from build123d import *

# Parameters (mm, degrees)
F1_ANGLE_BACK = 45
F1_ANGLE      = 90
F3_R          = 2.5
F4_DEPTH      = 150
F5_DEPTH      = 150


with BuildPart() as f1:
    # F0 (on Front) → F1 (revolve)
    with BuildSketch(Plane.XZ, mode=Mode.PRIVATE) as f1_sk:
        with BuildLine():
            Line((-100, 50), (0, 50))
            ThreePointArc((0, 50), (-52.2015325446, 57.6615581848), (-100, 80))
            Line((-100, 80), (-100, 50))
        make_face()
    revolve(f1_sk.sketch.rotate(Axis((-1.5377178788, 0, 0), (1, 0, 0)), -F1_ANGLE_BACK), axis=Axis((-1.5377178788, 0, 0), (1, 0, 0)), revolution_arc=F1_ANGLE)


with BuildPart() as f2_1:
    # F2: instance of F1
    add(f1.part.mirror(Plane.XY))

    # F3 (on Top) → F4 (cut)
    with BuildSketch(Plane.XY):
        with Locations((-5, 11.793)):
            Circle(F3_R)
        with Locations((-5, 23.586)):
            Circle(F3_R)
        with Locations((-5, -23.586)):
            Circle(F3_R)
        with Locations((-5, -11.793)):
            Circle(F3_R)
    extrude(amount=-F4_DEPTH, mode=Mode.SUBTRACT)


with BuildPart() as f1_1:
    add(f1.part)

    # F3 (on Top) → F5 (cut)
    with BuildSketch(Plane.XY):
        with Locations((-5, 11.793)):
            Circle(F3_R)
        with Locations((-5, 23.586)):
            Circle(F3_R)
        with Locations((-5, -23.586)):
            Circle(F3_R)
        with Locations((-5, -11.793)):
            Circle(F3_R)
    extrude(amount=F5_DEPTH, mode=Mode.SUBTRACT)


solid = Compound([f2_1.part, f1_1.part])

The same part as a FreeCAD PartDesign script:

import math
import FreeCAD as App
import Part
import Sketcher

V = App.Vector
Q = App.Units.Quantity

doc = App.newDocument("Part")
params = doc.addObject("Spreadsheet::Sheet", "Params")
for row, (alias, value) in enumerate([
    ("sketch1_width", "100 mm"),
    ("sketch1_height", "30 mm"),
    ("revolution_angle", "90 deg"),
    ("sketch2_diameter", "5 mm"),
    ("pocket1_length", "150 mm"),
    ("sketch3_diameter", "5 mm"),
    ("pocket2_length", "150 mm"),
], start=1):
    params.set(f"A{row}", alias)
    params.set(f"B{row}", "=" + value)
    params.setAlias(f"B{row}", alias)

body = doc.addObject("PartDesign::Body", "Body")

sketch1 = body.newObject("Sketcher::SketchObject", "Sketch")
sketch1.Placement = App.Placement(V(0, 0, 0), App.Rotation(V(1, 0, 0), V(0, 0.707106781, 0.707106781), V(0, -0.707106781, 0.707106781), "ZXY"))
sketch1.addGeometry([
    Part.LineSegment(V(-100, 50, 0), V(0, 50, 0)),
    Part.ArcOfCircle(Part.Circle(V(0, 232, 0), V(0, 0, 1), 182), math.radians(-123), math.radians(-90)),
    Part.LineSegment(V(-100, 80, 0), V(-100, 50, 0)),
], False)
sketch1.addConstraint([
    Sketcher.Constraint("Tangent", 0, 2, 1, 2),
    Sketcher.Constraint("Coincident", 1, 1, 2, 1),
    Sketcher.Constraint("Coincident", 2, 2, 0, 1),
    Sketcher.Constraint("Horizontal", 0),
    Sketcher.Constraint("Vertical", 2),
    Sketcher.Constraint("PointOnObject", 1, 3, -2),
    Sketcher.Constraint("DistanceX", 0, 1, 0, 2, Q("100 mm")),
    Sketcher.Constraint("DistanceY", 2, 2, 2, 1, Q("30 mm")),
    Sketcher.Constraint("DistanceY", -1, 1, 0, 2, Q("50 mm")),
])
sketch1.setExpression("Constraints[6]", "Params.sketch1_width")
sketch1.setExpression("Constraints[7]", "Params.sketch1_height")
revolution = body.newObject("PartDesign::Revolution", "Revolution")
revolution.Profile = sketch1
revolution.ReferenceAxis = (sketch1, ["H_Axis"])
revolution.setExpression("Angle", "Params.revolution_angle")
body2 = doc.addObject("PartDesign::Body", "Body001")
doc.recompute()

mirroring = doc.addObject("Part::Mirroring", "Mirroring")
mirroring.Source = body
mirroring.Base = V(0, 0, 0)
mirroring.Normal = V(0, 0, 1)
body2.BaseFeature = mirroring
doc.recompute()

sketch2 = body2.newObject("Sketcher::SketchObject", "Sketch001")
sketch2.AttachmentSupport = (doc.getObject("XY_Plane001"), [""])
sketch2.MapMode = "FlatFace"
sketch2.addGeometry([
    Part.Circle(V(-5, 11.8, 0), V(0, 0, 1), 2.5),
    Part.Circle(V(-5, 23.6, 0), V(0, 0, 1), 2.5),
    Part.Circle(V(-5, -23.6, 0), V(0, 0, 1), 2.5),
    Part.Circle(V(-5, -11.8, 0), V(0, 0, 1), 2.5),
], False)
sketch2.addConstraint([
    Sketcher.Constraint("Equal", 0, 1),
    Sketcher.Constraint("Equal", 1, 2),
    Sketcher.Constraint("Equal", 2, 3),
    Sketcher.Constraint("Symmetric", 1, 3, 2, 3, -1),
    Sketcher.Constraint("Symmetric", 0, 3, 3, 3, -1),
    Sketcher.Constraint("Vertical", 0, 3, 1, 3),
    Sketcher.Constraint("Diameter", 0, Q("5 mm")),
    Sketcher.Constraint("DistanceX", 0, 3, -1, 1, Q("5 mm")),
    Sketcher.Constraint("DistanceY", -1, 1, 0, 3, Q("11.793 mm")),
    Sketcher.Constraint("DistanceY", -1, 1, 1, 3, Q("23.586 mm")),
])
sketch2.setExpression("Constraints[6]", "Params.sketch2_diameter")
pocket1 = body2.newObject("PartDesign::Pocket", "Pocket")
pocket1.Profile = sketch2
pocket1.setExpression("Length", "Params.pocket1_length")

sketch3 = body.newObject("Sketcher::SketchObject", "Sketch002")
sketch3.AttachmentSupport = (doc.getObject("XY_Plane"), [""])
sketch3.MapMode = "FlatFace"
sketch3.addGeometry([
    Part.Circle(V(-5, 11.8, 0), V(0, 0, 1), 2.5),
    Part.Circle(V(-5, 23.6, 0), V(0, 0, 1), 2.5),
    Part.Circle(V(-5, -23.6, 0), V(0, 0, 1), 2.5),
    Part.Circle(V(-5, -11.8, 0), V(0, 0, 1), 2.5),
], False)
sketch3.addConstraint([
    Sketcher.Constraint("Equal", 0, 1),
    Sketcher.Constraint("Equal", 1, 2),
    Sketcher.Constraint("Equal", 2, 3),
    Sketcher.Constraint("Symmetric", 1, 3, 2, 3, -1),
    Sketcher.Constraint("Symmetric", 0, 3, 3, 3, -1),
    Sketcher.Constraint("Vertical", 0, 3, 1, 3),
    Sketcher.Constraint("Diameter", 0, Q("5 mm")),
    Sketcher.Constraint("DistanceX", 0, 3, -1, 1, Q("5 mm")),
    Sketcher.Constraint("DistanceY", -1, 1, 0, 3, Q("11.793 mm")),
    Sketcher.Constraint("DistanceY", -1, 1, 1, 3, Q("23.586 mm")),
])
sketch3.setExpression("Constraints[6]", "Params.sketch3_diameter")
pocket2 = body.newObject("PartDesign::Pocket", "Pocket001")
pocket2.Profile = sketch3
pocket2.setExpression("Length", "Params.pocket2_length")
pocket2.Reversed = True
mirroring.Visibility = False

doc.recompute()
